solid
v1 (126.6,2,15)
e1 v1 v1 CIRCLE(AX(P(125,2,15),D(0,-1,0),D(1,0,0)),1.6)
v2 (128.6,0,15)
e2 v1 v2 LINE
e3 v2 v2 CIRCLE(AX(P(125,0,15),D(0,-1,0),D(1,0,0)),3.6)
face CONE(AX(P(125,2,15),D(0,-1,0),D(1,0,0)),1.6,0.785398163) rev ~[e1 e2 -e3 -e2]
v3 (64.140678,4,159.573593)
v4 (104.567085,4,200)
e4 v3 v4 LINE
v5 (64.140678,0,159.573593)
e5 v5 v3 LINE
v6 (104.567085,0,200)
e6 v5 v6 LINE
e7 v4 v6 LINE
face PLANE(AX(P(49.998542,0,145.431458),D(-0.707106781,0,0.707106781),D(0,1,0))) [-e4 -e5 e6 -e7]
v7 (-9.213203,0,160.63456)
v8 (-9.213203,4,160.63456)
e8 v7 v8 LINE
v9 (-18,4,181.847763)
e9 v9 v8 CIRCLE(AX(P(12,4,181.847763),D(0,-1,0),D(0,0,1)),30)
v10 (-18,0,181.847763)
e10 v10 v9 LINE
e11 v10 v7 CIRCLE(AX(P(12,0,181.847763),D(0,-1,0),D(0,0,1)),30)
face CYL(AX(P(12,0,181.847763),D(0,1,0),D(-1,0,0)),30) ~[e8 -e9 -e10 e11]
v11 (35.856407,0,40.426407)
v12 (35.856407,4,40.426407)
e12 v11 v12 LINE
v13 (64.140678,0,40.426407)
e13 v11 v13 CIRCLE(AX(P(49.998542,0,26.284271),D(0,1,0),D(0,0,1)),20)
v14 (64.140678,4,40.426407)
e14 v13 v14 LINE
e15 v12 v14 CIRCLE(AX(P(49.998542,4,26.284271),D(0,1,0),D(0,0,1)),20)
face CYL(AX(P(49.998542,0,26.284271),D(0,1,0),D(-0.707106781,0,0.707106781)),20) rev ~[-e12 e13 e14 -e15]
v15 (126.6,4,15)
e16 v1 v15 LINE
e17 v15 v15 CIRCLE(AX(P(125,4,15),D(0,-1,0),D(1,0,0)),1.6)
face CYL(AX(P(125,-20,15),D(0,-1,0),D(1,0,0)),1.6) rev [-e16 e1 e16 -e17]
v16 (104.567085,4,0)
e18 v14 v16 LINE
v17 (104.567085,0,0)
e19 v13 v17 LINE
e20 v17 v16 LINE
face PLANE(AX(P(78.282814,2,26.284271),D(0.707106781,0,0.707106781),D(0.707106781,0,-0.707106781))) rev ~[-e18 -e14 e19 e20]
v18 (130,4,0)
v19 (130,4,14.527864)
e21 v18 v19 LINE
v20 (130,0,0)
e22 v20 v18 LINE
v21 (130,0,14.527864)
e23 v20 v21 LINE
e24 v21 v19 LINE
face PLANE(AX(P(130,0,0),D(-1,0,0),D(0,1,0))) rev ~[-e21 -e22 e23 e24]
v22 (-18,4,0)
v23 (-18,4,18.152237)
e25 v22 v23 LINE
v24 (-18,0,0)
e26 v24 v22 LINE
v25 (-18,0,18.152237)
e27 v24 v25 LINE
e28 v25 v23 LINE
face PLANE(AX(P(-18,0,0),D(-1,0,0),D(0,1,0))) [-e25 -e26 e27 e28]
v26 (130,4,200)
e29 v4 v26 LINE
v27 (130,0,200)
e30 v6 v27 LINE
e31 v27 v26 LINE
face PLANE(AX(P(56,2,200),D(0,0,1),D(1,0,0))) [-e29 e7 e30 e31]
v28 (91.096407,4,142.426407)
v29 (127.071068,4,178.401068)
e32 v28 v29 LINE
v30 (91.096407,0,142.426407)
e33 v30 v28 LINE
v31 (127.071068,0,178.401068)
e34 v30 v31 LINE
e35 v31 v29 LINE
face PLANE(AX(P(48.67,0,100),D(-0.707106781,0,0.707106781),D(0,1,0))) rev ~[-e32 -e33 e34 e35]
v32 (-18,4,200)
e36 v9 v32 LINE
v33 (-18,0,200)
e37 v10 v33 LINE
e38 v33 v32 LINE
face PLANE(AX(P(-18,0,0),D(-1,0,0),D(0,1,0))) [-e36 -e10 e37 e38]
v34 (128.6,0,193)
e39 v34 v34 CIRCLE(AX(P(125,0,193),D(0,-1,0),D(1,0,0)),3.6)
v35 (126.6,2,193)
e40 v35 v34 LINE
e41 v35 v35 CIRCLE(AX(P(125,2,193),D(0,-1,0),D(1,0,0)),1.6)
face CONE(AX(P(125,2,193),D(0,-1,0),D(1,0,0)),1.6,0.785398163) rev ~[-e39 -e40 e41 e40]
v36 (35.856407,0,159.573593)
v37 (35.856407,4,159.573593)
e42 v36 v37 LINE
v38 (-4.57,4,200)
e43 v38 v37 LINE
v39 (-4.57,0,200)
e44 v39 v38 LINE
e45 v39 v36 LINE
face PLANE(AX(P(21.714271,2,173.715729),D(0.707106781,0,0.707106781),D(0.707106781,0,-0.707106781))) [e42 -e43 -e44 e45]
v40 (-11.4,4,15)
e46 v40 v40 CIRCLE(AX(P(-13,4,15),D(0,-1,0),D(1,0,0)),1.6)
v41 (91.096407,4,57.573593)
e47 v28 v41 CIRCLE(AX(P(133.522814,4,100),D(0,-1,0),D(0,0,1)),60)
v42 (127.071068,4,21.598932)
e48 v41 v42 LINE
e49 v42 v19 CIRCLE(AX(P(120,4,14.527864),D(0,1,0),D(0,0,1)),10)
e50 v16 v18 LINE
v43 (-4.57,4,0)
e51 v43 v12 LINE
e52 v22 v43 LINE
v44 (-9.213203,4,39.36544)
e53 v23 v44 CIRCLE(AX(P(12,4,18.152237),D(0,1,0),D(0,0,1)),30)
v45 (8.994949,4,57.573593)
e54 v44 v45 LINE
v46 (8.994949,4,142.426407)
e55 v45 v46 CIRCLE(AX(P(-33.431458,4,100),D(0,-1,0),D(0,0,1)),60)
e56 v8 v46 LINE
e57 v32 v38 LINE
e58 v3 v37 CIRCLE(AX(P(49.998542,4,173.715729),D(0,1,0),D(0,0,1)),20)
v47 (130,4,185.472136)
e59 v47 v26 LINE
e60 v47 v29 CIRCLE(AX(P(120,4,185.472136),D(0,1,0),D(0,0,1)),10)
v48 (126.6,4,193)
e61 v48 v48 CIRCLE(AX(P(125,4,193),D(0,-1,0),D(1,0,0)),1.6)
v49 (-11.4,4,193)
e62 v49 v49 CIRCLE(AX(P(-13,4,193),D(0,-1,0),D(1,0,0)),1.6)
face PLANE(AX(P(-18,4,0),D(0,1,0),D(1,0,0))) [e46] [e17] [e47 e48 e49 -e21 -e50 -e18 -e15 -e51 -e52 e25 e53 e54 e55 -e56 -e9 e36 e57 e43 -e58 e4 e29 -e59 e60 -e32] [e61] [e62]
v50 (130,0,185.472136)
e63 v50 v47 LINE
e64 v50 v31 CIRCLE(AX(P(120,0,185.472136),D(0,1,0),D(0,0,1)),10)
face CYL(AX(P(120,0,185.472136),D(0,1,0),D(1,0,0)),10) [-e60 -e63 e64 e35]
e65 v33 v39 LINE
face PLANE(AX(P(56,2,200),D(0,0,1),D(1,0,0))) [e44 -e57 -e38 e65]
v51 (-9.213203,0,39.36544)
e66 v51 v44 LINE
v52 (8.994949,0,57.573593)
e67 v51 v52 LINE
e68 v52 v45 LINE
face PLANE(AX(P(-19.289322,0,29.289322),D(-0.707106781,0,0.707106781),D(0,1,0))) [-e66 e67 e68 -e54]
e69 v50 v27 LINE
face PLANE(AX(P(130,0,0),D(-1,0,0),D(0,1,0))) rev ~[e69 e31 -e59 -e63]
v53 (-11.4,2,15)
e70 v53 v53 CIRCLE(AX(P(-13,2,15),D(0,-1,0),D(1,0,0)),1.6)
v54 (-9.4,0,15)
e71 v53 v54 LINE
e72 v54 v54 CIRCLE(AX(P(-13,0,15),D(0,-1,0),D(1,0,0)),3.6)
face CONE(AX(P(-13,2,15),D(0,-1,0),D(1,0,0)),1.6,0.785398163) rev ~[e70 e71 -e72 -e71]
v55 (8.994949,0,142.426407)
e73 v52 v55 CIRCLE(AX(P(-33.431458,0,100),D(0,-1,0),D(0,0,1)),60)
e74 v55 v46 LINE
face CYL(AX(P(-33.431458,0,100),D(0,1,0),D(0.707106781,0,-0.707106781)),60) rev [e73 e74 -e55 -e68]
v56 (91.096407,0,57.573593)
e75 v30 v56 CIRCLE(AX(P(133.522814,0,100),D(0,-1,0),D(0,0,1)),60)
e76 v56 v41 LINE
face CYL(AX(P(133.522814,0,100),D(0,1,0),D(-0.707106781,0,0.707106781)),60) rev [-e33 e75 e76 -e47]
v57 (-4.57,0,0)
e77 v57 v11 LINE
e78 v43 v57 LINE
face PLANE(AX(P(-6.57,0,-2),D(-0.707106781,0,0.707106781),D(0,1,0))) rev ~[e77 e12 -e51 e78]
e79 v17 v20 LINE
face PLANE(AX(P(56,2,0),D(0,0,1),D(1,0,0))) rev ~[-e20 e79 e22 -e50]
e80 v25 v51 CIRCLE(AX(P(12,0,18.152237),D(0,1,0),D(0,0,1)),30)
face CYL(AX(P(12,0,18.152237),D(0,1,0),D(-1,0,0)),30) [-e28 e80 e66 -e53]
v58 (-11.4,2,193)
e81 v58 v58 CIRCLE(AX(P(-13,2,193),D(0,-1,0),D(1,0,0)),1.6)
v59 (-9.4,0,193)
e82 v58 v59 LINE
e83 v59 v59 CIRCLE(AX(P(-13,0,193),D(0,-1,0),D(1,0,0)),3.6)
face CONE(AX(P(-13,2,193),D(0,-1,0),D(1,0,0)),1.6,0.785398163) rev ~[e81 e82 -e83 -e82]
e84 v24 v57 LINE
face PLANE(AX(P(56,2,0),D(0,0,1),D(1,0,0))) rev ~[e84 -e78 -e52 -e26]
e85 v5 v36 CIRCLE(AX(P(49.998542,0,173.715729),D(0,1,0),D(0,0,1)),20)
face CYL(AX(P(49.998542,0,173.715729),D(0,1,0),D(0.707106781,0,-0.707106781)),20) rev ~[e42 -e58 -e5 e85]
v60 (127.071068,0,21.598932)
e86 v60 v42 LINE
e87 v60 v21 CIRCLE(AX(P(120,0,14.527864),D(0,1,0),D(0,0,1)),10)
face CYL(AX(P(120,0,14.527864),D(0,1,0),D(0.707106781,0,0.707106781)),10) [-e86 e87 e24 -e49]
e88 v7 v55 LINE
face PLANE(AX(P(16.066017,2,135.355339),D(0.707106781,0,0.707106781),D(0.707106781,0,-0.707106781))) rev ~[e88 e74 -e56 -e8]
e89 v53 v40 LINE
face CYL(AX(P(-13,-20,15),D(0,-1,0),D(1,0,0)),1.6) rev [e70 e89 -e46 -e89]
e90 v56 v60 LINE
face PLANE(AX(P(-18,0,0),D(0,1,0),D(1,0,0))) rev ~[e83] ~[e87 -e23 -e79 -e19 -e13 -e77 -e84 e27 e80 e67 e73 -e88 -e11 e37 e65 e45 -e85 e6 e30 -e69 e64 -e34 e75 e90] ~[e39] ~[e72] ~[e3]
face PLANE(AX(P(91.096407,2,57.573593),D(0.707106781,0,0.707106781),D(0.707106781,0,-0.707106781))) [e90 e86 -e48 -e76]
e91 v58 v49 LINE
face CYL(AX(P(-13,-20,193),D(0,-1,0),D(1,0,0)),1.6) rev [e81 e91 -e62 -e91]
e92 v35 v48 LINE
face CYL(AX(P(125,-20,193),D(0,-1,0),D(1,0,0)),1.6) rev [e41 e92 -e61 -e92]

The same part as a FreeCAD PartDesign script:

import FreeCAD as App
import Part
import Sketcher
Q = App.Units.Quantity


def edges_at(feature, points):
    """Names of the edges that pass closest to the given points."""
    edges = feature.Shape.Edges
    near = lambda p: min(range(len(edges)), key=lambda i: edges[i].distToShape(Part.Vertex(*p))[0])
    return sorted({f"Edge{near(p) + 1}" for p in points})


def add_polygon(sketch, points):
    """Adds a closed chain of lines whose ends are joined by coincident constraints."""
    first, n = sketch.GeometryCount, len(points)
    for a, b in zip(points, points[1:] + points[:1]):
        sketch.addGeometry(Part.LineSegment(App.Vector(*a, 0), App.Vector(*b, 0)), False)
    for i in range(n):
        sketch.addConstraint(Sketcher.Constraint("Coincident", first + i, 2, first + (i + 1) % n, 1))

doc = App.newDocument("Part")
body = doc.addObject("PartDesign::Body", "Body")

sketch1 = doc.addObject("Sketcher::SketchObject", "Sketch")
body.addObject(sketch1)
sketch1.AttachmentSupport = (doc.XY_Plane, [""])
sketch1.MapMode = "FlatFace"
add_polygon(sketch1, [(0, 4), (0, 0), (80, 0), (80, 4)])
sketch1.addConstraint([
    Sketcher.Constraint("Vertical", 0),
    Sketcher.Constraint("Horizontal", 1),
    Sketcher.Constraint("Vertical", 2),
    Sketcher.Constraint("Horizontal", 3),
    Sketcher.Constraint("Coincident", 0, 2, -1, 1),
    Sketcher.Constraint("DistanceX", 1, 1, 1, 2, Q("80 mm")),
    Sketcher.Constraint("DistanceY", 0, 2, 0, 1, Q("4 mm")),
])
pad1 = doc.addObject("PartDesign::Pad", "Pad")
body.addObject(pad1)
pad1.Profile = sketch1
pad1.Length = 80
body2 = doc.addObject("PartDesign::Body", "Body001")
doc.recompute()

body.Placement = App.Placement(App.Vector(-6.57, 0, 202), App.Rotation(App.Vector(0, 1, 0), 45))
boolean = doc.addObject("PartDesign::Boolean", "Boolean")
body2.addObject(boolean)
boolean.Type = "Fuse"
boolean.addObjects([body])
doc.recompute()

fillet = doc.addObject("PartDesign::Fillet", "Fillet")
body2.addObject(fillet)
fillet.Base = (boolean, edges_at(boolean, [(49.999, 2, 145.431)]))
fillet.Radius = 20
body3 = doc.addObject("PartDesign::Body", "Body002")

sketch2 = doc.addObject("Sketcher::SketchObject", "Sketch001")
body3.addObject(sketch2)
sketch2.AttachmentSupport = (doc.getObject("XY_Plane002"), [""])
sketch2.MapMode = "FlatFace"
add_polygon(sketch2, [(0, 4), (0, 0), (80, 0), (80, 4)])
sketch2.addConstraint([
    Sketcher.Constraint("Vertical", 0),
    Sketcher.Constraint("Horizontal", 1),
    Sketcher.Constraint("Vertical", 2),
    Sketcher.Constraint("Horizontal", 3),
    Sketcher.Constraint("Coincident", 0, 2, -1, 1),
    Sketcher.Constraint("DistanceX", 1, 1, 1, 2, Q("80 mm")),
    Sketcher.Constraint("DistanceY", 0, 2, 0, 1, Q("4 mm")),
])
pad2 = doc.addObject("PartDesign::Pad", "Pad001")
body3.addObject(pad2)
pad2.Profile = sketch2
pad2.Length = 80
body4 = doc.addObject("PartDesign::Body", "Body003")
doc.recompute()

body3.Placement = App.Placement(App.Vector(-6.57, 0, -2), App.Rotation(App.Vector(0, 1, 0), 45))
boolean2 = doc.addObject("PartDesign::Boolean", "Boolean001")
body4.addObject(boolean2)
boolean2.Type = "Fuse"
boolean2.addObjects([body3])
doc.recompute()

fillet2 = doc.addObject("PartDesign::Fillet", "Fillet001")
body4.addObject(fillet2)
fillet2.Base = (boolean2, edges_at(boolean2, [(49.999, 2, 54.569)]))
fillet2.Radius = 20
body5 = doc.addObject("PartDesign::Body", "Body004")

sketch3 = doc.addObject("Sketcher::SketchObject", "Sketch002")
body5.addObject(sketch3)
sketch3.AttachmentSupport = (doc.getObject("XY_Plane004"), [""])
sketch3.MapMode = "FlatFace"
add_polygon(sketch3, [(0, 4), (0, 0), (120, 0), (120, 4)])
sketch3.addConstraint([
    Sketcher.Constraint("Vertical", 0),
    Sketcher.Constraint("Horizontal", 1),
    Sketcher.Constraint("Vertical", 2),
    Sketcher.Constraint("Horizontal", 3),
    Sketcher.Constraint("Coincident", 0, 2, -1, 1),
    Sketcher.Constraint("DistanceX", 1, 1, 1, 2, Q("120 mm")),
    Sketcher.Constraint("DistanceY", 0, 2, 0, 1, Q("4 mm")),
])
pad3 = doc.addObject("PartDesign::Pad", "Pad002")
body5.addObject(pad3)
pad3.Profile = sketch3
pad3.Length = 120
body6 = doc.addObject("PartDesign::Body", "Body005")
doc.recompute()

body5.Placement = App.Placement(App.Vector(48.67, 0, 100), App.Rotation(App.Vector(0, 1, 0), 45))
boolean3 = doc.addObject("PartDesign::Boolean", "Boolean002")
body6.addObject(boolean3)
boolean3.Type = "Fuse"
boolean3.addObjects([body5])
doc.recompute()

fillet3 = doc.addObject("PartDesign::Fillet", "Fillet002")
body6.addObject(fillet3)
fillet3.Base = (boolean3, edges_at(boolean3, [(48.67, 2, 100)]))
fillet3.Radius = 60
body7 = doc.addObject("PartDesign::Body", "Body006")

sketch4 = doc.addObject("Sketcher::SketchObject", "Sketch003")
body7.addObject(sketch4)
sketch4.AttachmentSupport = (doc.getObject("XZ_Plane006"), [""])
sketch4.MapMode = "FlatFace"
sketch4.AttachmentOffset = App.Placement(App.Vector(0, 0, 20), App.Rotation())
sketch4.addGeometry(Part.Circle(App.Vector(125, 15, 0), App.Vector(0, 0, 1), 1.6), False)
sketch4.addConstraint([
    Sketcher.Constraint("Diameter", 0, Q("3.2 mm")),
    Sketcher.Constraint("DistanceX", -1, 1, 0, 3, Q("125 mm")),
    Sketcher.Constraint("DistanceY", -1, 1, 0, 3, Q("15 mm")),
])
pad4 = doc.addObject("PartDesign::Pad", "Pad003")
body7.addObject(pad4)
pad4.Profile = sketch4
pad4.Length = 25
pad4.Reversed = True
body8 = doc.addObject("PartDesign::Body", "Body007")

sketch5 = doc.addObject("Sketcher::SketchObject", "Sketch004")
body8.addObject(sketch5)
sketch5.AttachmentSupport = (doc.getObject("XZ_Plane007"), [""])
sketch5.MapMode = "FlatFace"
sketch5.AttachmentOffset = App.Placement(App.Vector(0, 0, 20), App.Rotation())
sketch5.addGeometry(Part.Circle(App.Vector(-13, 193, 0), App.Vector(0, 0, 1), 1.6), False)
sketch5.addConstraint([
    Sketcher.Constraint("Diameter", 0, Q("3.2 mm")),
    Sketcher.Constraint("DistanceX", 0, 3, -1, 1, Q("13 mm")),
    Sketcher.Constraint("DistanceY", -1, 1, 0, 3, Q("193 mm")),
])
pad5 = doc.addObject("PartDesign::Pad", "Pad004")
body8.addObject(pad5)
pad5.Profile = sketch5
pad5.Length = 25
pad5.Reversed = True
body9 = doc.addObject("PartDesign::Body", "Body008")

sketch6 = doc.addObject("Sketcher::SketchObject", "Sketch005")
body9.addObject(sketch6)
sketch6.AttachmentSupport = (doc.getObject("XZ_Plane008"), [""])
sketch6.MapMode = "FlatFace"
sketch6.AttachmentOffset = App.Placement(App.Vector(0, 0, 20), App.Rotation())
sketch6.addGeometry(Part.Circle(App.Vector(125, 193, 0), App.Vector(0, 0, 1), 1.6), False)
sketch6.addConstraint([
    Sketcher.Constraint("Diameter", 0, Q("3.2 mm")),
    Sketcher.Constraint("DistanceX", -1, 1, 0, 3, Q("125 mm")),
    Sketcher.Constraint("DistanceY", -1, 1, 0, 3, Q("193 mm")),
])
pad6 = doc.addObject("PartDesign::Pad", "Pad005")
body9.addObject(pad6)
pad6.Profile = sketch6
pad6.Length = 25
pad6.Reversed = True
body10 = doc.addObject("PartDesign::Body", "Body009")
body10.AllowCompound = True

sketch7 = doc.addObject("Sketcher::SketchObject", "Sketch006")
body10.addObject(sketch7)
sketch7.AttachmentSupport = (doc.getObject("XZ_Plane009"), [""])
sketch7.MapMode = "FlatFace"
sketch7.AttachmentOffset = App.Placement(App.Vector(0, 0, 20), App.Rotation())
sketch7.addGeometry(Part.Circle(App.Vector(-13, 15, 0), App.Vector(0, 0, 1), 1.6), False)
sketch7.addConstraint([
    Sketcher.Constraint("Diameter", 0, Q("3.2 mm")),
    Sketcher.Constraint("DistanceX", 0, 3, -1, 1, Q("13 mm")),
    Sketcher.Constraint("DistanceY", -1, 1, 0, 3, Q("15 mm")),
])
pad7 = doc.addObject("PartDesign::Pad", "Pad006")
body10.addObject(pad7)
pad7.Profile = sketch7
pad7.Length = 25
pad7.Reversed = True
doc.recompute()

boolean4 = doc.addObject("PartDesign::Boolean", "Boolean003")
body10.addObject(boolean4)
boolean4.Type = "Fuse"
boolean4.addObjects([body7])
doc.recompute()

boolean5 = doc.addObject("PartDesign::Boolean", "Boolean004")
body10.addObject(boolean5)
boolean5.Type = "Fuse"
boolean5.addObjects([body8])
doc.recompute()

boolean6 = doc.addObject("PartDesign::Boolean", "Boolean005")
body10.addObject(boolean6)
boolean6.Type = "Fuse"
boolean6.addObjects([body9])
body11 = doc.addObject("PartDesign::Body", "Body010")

sketch8 = doc.addObject("Sketcher::SketchObject", "Sketch007")
body11.addObject(sketch8)
sketch8.AttachmentSupport = (doc.getObject("XY_Plane010"), [""])
sketch8.MapMode = "FlatFace"
add_polygon(sketch8, [(0, 4), (0, 0), (100, 0), (100, 4)])
sketch8.addConstraint([
    Sketcher.Constraint("Vertical", 0),
    Sketcher.Constraint("Horizontal", 1),
    Sketcher.Constraint("Vertical", 2),
    Sketcher.Constraint("Horizontal", 3),
    Sketcher.Constraint("Coincident", 0, 2, -1, 1),
    Sketcher.Constraint("DistanceX", 1, 1, 1, 2, Q("100 mm")),
    Sketcher.Constraint("DistanceY", 0, 2, 0, 1, Q("4 mm")),
])
pad8 = doc.addObject("PartDesign::Pad", "Pad007")
body11.addObject(pad8)
pad8.Profile = sketch8
pad8.Length = 100
body12 = doc.addObject("PartDesign::Body", "Body011")
body12.AllowCompound = True
doc.recompute()

body11.Placement = App.Placement(App.Vector(-90, 0, 100), App.Rotation(App.Vector(0, 1, 0), 45))
boolean7 = doc.addObject("PartDesign::Boolean", "Boolean006")
body12.addObject(boolean7)
boolean7.Type = "Fuse"
boolean7.addObjects([body11])
doc.recompute()

fillet4 = doc.addObject("PartDesign::Fillet", "Fillet003")
body12.addObject(fillet4)
fillet4.Base = (boolean7, edges_at(boolean7, [(51.421, 2, 100)]))
fillet4.Radius = 60
doc.recompute()

boolean8 = doc.addObject("PartDesign::Boolean", "Boolean007")
body12.addObject(boolean8)
boolean8.Type = "Fuse"
boolean8.addObjects([body2])
doc.recompute()

boolean9 = doc.addObject("PartDesign::Boolean", "Boolean008")
body12.addObject(boolean9)
boolean9.Type = "Fuse"
boolean9.addObjects([body4])
doc.recompute()

boolean10 = doc.addObject("PartDesign::Boolean", "Boolean009")
body12.addObject(boolean10)
boolean10.Type = "Fuse"
boolean10.addObjects([body6])
doc.recompute()

boolean11 = doc.addObject("PartDesign::Boolean", "Boolean010")
body12.addObject(boolean11)
boolean11.Type = "Fuse"
boolean11.addObjects([body10])
body13 = doc.addObject("PartDesign::Body", "Body012")

sketch9 = doc.addObject("Sketcher::SketchObject", "Sketch008")
body13.addObject(sketch9)
sketch9.AttachmentSupport = (doc.getObject("XY_Plane012"), [""])
sketch9.MapMode = "FlatFace"
add_polygon(sketch9, [(-18, 4), (-18, 0), (130, 0), (130, 4)])
sketch9.addConstraint([
    Sketcher.Constraint("Vertical", 0),
    Sketcher.Constraint("Horizontal", 1),
    Sketcher.Constraint("Vertical", 2),
    Sketcher.Constraint("Horizontal", 3),
    Sketcher.Constraint("PointOnObject", 0, 2, -1),
    Sketcher.Constraint("DistanceX", 1, 1, 1, 2, Q("148 mm")),
    Sketcher.Constraint("DistanceY", 0, 2, 0, 1, Q("4 mm")),
    Sketcher.Constraint("DistanceX", 0, 2, -1, 1, Q("18 mm")),
])
pad9 = doc.addObject("PartDesign::Pad", "Pad008")
body13.addObject(pad9)
pad9.Profile = sketch9
pad9.Length = 200
doc.recompute()

boolean12 = doc.addObject("PartDesign::Boolean", "Boolean011")
body13.addObject(boolean12)
boolean12.Type = "Cut"
boolean12.addObjects([body12])
doc.recompute()

fillet5 = doc.addObject("PartDesign::Fillet", "Fillet004")
body13.addObject(fillet5)
fillet5.Base = (boolean12, edges_at(boolean12, [(-18, 2, 30.579), (-18, 2, 169.421)]))
fillet5.Radius = 30
doc.recompute()

fillet6 = doc.addObject("PartDesign::Fillet", "Fillet005")
body13.addObject(fillet6)
fillet6.Base = (fillet5, edges_at(fillet5, [(130, 2, 181.33), (130, 2, 18.67)]))
fillet6.Radius = 10
doc.recompute()

chamfer = doc.addObject("PartDesign::Chamfer", "Chamfer")
body13.addObject(chamfer)
chamfer.Base = (fillet6, edges_at(fillet6, [
    (-14.6, 0, 15),
    (-14.6, 0, 193),
    (123.4, 0, 15),
    (123.4, 0, 193),
]))
chamfer.Size = 2

doc.recompute()
